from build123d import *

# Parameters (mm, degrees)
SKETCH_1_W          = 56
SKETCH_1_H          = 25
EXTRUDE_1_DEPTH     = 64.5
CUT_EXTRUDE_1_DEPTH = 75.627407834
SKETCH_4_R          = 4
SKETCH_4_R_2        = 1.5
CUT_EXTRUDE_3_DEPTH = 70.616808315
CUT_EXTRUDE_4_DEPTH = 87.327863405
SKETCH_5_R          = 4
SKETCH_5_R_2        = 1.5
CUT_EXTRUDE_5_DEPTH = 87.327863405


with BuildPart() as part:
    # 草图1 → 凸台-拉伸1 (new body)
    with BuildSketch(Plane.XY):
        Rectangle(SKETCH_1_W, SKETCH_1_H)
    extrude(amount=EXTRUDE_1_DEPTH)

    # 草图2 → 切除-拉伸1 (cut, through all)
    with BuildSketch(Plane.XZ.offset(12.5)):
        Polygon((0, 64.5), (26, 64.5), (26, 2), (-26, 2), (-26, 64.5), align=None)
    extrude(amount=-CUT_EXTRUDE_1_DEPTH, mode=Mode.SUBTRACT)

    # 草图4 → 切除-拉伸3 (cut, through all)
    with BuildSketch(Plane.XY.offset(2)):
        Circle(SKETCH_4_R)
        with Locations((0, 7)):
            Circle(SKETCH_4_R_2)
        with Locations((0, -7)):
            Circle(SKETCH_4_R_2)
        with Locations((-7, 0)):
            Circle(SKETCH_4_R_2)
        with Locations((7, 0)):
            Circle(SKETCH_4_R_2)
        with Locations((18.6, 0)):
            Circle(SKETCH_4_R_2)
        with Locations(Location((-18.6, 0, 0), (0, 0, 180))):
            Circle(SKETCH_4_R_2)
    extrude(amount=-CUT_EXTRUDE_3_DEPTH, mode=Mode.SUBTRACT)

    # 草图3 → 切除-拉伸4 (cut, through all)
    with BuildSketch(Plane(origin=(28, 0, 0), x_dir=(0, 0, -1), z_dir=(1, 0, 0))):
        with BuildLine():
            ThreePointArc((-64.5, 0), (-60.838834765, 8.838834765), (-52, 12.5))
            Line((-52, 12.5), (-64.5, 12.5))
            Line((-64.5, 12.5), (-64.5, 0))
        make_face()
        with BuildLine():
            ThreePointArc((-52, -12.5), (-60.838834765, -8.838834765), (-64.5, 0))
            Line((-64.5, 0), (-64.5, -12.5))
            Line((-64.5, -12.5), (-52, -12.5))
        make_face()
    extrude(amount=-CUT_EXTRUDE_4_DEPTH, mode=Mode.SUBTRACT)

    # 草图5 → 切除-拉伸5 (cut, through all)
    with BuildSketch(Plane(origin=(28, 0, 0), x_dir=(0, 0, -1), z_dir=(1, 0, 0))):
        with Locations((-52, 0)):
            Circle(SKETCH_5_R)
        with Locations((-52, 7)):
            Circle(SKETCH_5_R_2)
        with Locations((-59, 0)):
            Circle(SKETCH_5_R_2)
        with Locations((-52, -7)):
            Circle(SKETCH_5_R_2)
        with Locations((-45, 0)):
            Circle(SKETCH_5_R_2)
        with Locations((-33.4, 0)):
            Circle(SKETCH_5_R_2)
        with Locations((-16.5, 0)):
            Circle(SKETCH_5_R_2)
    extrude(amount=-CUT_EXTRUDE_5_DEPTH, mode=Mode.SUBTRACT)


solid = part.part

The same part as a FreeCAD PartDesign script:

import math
import FreeCAD as App
import Part
import Sketcher
from FreeCAD import Vector


def add_polygon(sketch, points):
    """Adds a closed chain of lines whose ends are joined by coincident constraints."""
    first, n = sketch.GeometryCount, len(points)
    for a, b in zip(points, points[1:] + points[:1]):
        sketch.addGeometry(Part.LineSegment(App.Vector(*a, 0), App.Vector(*b, 0)), False)
    for i in range(n):
        sketch.addConstraint(Sketcher.Constraint("Coincident", first + i, 2, first + (i + 1) % n, 1))

doc = App.newDocument("Part")
params = doc.addObject("Spreadsheet::Sheet", "Params")
for row, (alias, value) in enumerate([
    ("sketch1_width", "56 mm"),
    ("sketch1_height", "25 mm"),
    ("pad1_length", "64.5 mm"),
    ("sketch2_width", "52 mm"),
    ("sketch2_height", "62.5 mm"),
    ("sketch3_diameter", "8 mm"),
    ("sketch3_diameter2", "3 mm"),
    ("sketch4_radius", "12.5 mm"),
    ("sketch5_diameter", "8 mm"),
    ("sketch5_diameter2", "3 mm"),
], start=1):
    params.set(f"A{row}", alias)
    params.set(f"B{row}", "=" + value)
    params.setAlias(f"B{row}", alias)

body = doc.addObject("PartDesign::Body", "Body")

# Sketch on XY plane
sketch1 = body.newObject("Sketcher::SketchObject", "Sketch")
sketch1.AttachmentSupport = (doc.getObject("XY_Plane"), [""])
sketch1.MapMode = "FlatFace"
add_polygon(sketch1, [(-28, 12), (-28, -12), (28, -12), (28, 12)])  # lines 0-3
sketch1.addConstraint(Sketcher.Constraint("Vertical", 0))
sketch1.addConstraint(Sketcher.Constraint("Horizontal", 1))
sketch1.addConstraint(Sketcher.Constraint("Vertical", 2))
sketch1.addConstraint(Sketcher.Constraint("Horizontal", 3))
sketch1.addConstraint(Sketcher.Constraint("Symmetric", 0, 2, 2, 2, -1, 1))
sketch1.addConstraint(Sketcher.Constraint("DistanceX", 1, 1, 1, 2, 56.0))
sketch1.addConstraint(Sketcher.Constraint("DistanceY", 0, 2, 0, 1, 25.0))
sketch1.setExpression("Constraints[9]", "Params.sketch1_width")
sketch1.setExpression("Constraints[10]", "Params.sketch1_height")
pad1 = body.newObject("PartDesign::Pad", "Pad")
pad1.Profile = sketch1
pad1.setExpression("Length", "Params.pad1_length")

# Sketch on XZ plane
sketch2 = body.newObject("Sketcher::SketchObject", "Sketch001")
sketch2.AttachmentSupport = (doc.getObject("XZ_Plane"), [""])
sketch2.MapMode = "FlatFace"
sketch2.AttachmentOffset = App.Placement(Vector(0, 0, 12.5), App.Rotation())
add_polygon(sketch2, [(26, 64), (-26, 64), (-26, 2), (26, 2)])  # lines 0-3
sketch2.addConstraint(Sketcher.Constraint("Horizontal", 0))
sketch2.addConstraint(Sketcher.Constraint("Vertical", 1))
sketch2.addConstraint(Sketcher.Constraint("Horizontal", 2))
sketch2.addConstraint(Sketcher.Constraint("Vertical", 3))
sketch2.addConstraint(Sketcher.Constraint("DistanceX", 0, 2, 0, 1, 52.0))
sketch2.addConstraint(Sketcher.Constraint("DistanceY", 1, 2, 1, 1, 62.5))
sketch2.addConstraint(Sketcher.Constraint("DistanceX", 0, 2, -1, 1, 26.0))
sketch2.addConstraint(Sketcher.Constraint("DistanceY", -1, 1, 1, 2, 2.0))
sketch2.setExpression("Constraints[8]", "Params.sketch2_width")
sketch2.setExpression("Constraints[9]", "Params.sketch2_height")
pocket1 = body.newObject("PartDesign::Pocket", "Pocket")
pocket1.Profile = sketch2
pocket1.Type = "ThroughAll"

# Sketch on XY plane
sketch3 = body.newObject("Sketcher::SketchObject", "Sketch002")
sketch3.AttachmentSupport = (doc.getObject("XY_Plane"), [""])
sketch3.MapMode = "FlatFace"
sketch3.AttachmentOffset = App.Placement(Vector(0, 0, 2), App.Rotation())
sketch3.addGeometry(Part.Circle(Vector(0, 0, 0), Vector(0, 0, 1), 4), False)
sketch3.addGeometry(Part.Circle(Vector(0, 7, 0), Vector(0, 0, 1), 1.5), False)
sketch3.addGeometry(Part.Circle(Vector(0, -7, 0), Vector(0, 0, 1), 1.5), False)
sketch3.addGeometry(Part.Circle(Vector(-7, 0, 0), Vector(0, 0, 1), 1.5), False)
sketch3.addGeometry(Part.Circle(Vector(7, 0, 0), Vector(0, 0, 1), 1.5), False)
sketch3.addGeometry(Part.Circle(Vector(18.6, 0, 0), Vector(0, 0, 1), 1.5), False)
sketch3.addGeometry(Part.Circle(Vector(-18.6, 0, 0), Vector(0, 0, 1), 1.5), False)
sketch3.addConstraint(Sketcher.Constraint("Coincident", 0, 3, -1, 1))
sketch3.addConstraint(Sketcher.Constraint("Equal", 1, 2))
sketch3.addConstraint(Sketcher.Constraint("Equal", 2, 3))
sketch3.addConstraint(Sketcher.Constraint("Equal", 3, 4))
sketch3.addConstraint(Sketcher.Constraint("Equal", 4, 5))
sketch3.addConstraint(Sketcher.Constraint("Equal", 5, 6))
sketch3.addConstraint(Sketcher.Constraint("Symmetric", 1, 3, 2, 3, -1, 1))
sketch3.addConstraint(Sketcher.Constraint("Symmetric", 3, 3, 4, 3, -1, 1))
sketch3.addConstraint(Sketcher.Constraint("Symmetric", 5, 3, 6, 3, -1, 1))
sketch3.addConstraint(Sketcher.Constraint("PointOnObject", 1, 3, -2))
sketch3.addConstraint(Sketcher.Constraint("PointOnObject", 3, 3, -1))
sketch3.addConstraint(Sketcher.Constraint("PointOnObject", 5, 3, -1))
sketch3.addConstraint(Sketcher.Constraint("Diameter", 0, 8.0))
sketch3.addConstraint(Sketcher.Constraint("Diameter", 1, 3.0))
sketch3.addConstraint(Sketcher.Constraint("DistanceY", -1, 1, 1, 3, 7.0))
sketch3.addConstraint(Sketcher.Constraint("DistanceX", 3, 3, -1, 1, 7.0))
sketch3.addConstraint(Sketcher.Constraint("DistanceX", -1, 1, 5, 3, 18.6))
sketch3.setExpression("Constraints[12]", "Params.sketch3_diameter")
sketch3.setExpression("Constraints[13]", "Params.sketch3_diameter2")
pocket2 = body.newObject("PartDesign::Pocket", "Pocket001")
pocket2.Profile = sketch3
pocket2.Type = "ThroughAll"

# Sketch on YZ plane
sketch4 = body.newObject("Sketcher::SketchObject", "Sketch003")
sketch4.AttachmentSupport = (doc.getObject("YZ_Plane"), [""])
sketch4.MapMode = "FlatFace"
sketch4.AttachmentOffset = App.Placement(Vector(0, 0, 28), App.Rotation())
sketch4.addGeometry(Part.ArcOfCircle(Part.Circle(Vector(0, 52, 0), Vector(0, 0, 1), 12), math.radians(0), math.radians(90)), False)
sketch4.addGeometry(Part.LineSegment(Vector(12, 52, 0), Vector(12, 64, 0)), False)
sketch4.addGeometry(Part.LineSegment(Vector(12, 64, 0), Vector(0, 64, 0)), False)
sketch4.addGeometry(Part.ArcOfCircle(Part.Circle(Vector(0, 52, 0), Vector(0, 0, 1), 12), math.radians(90), math.radians(180)), False)
sketch4.addGeometry(Part.LineSegment(Vector(0, 64, 0), Vector(-12, 64, 0)), False)
sketch4.addGeometry(Part.LineSegment(Vector(-12, 64, 0), Vector(-12, 52, 0)), False)
sketch4.addConstraint(Sketcher.Constraint("Tangent", 0, 1, 1, 1))
sketch4.addConstraint(Sketcher.Constraint("Coincident", 1, 2, 2, 1))
sketch4.addConstraint(Sketcher.Constraint("Tangent", 2, 2, 0, 2))
sketch4.addConstraint(Sketcher.Constraint("Tangent", 3, 1, 4, 1))
sketch4.addConstraint(Sketcher.Constraint("Coincident", 4, 2, 5, 1))
sketch4.addConstraint(Sketcher.Constraint("Tangent", 5, 2, 3, 2))
sketch4.addConstraint(Sketcher.Constraint("Vertical", 1))
sketch4.addConstraint(Sketcher.Constraint("Horizontal", 2))
sketch4.addConstraint(Sketcher.Constraint("Horizontal", 4))
sketch4.addConstraint(Sketcher.Constraint("Vertical", 5))
sketch4.addConstraint(Sketcher.Constraint("Coincident", 3, 3, 0, 3))
sketch4.addConstraint(Sketcher.Constraint("Equal", 0, 3))
sketch4.addConstraint(Sketcher.Constraint("PointOnObject", 0, 3, -2))
sketch4.addConstraint(Sketcher.Constraint("Radius", 0, 12.5))
sketch4.addConstraint(Sketcher.Constraint("DistanceY", -1, 1, 0, 3, 52.0))
sketch4.setExpression("Constraints[13]", "Params.sketch4_radius")
pocket3 = body.newObject("PartDesign::Pocket", "Pocket002")
pocket3.Profile = sketch4
pocket3.Type = "ThroughAll"

# Sketch on YZ plane
sketch5 = body.newObject("Sketcher::SketchObject", "Sketch004")
sketch5.AttachmentSupport = (doc.getObject("YZ_Plane"), [""])
sketch5.MapMode = "FlatFace"
sketch5.AttachmentOffset = App.Placement(Vector(0, 0, 28), App.Rotation())
sketch5.addGeometry(Part.Circle(Vector(0, 52, 0), Vector(0, 0, 1), 4), False)
sketch5.addGeometry(Part.Circle(Vector(7, 52, 0), Vector(0, 0, 1), 1.5), False)
sketch5.addGeometry(Part.Circle(Vector(0, 59, 0), Vector(0, 0, 1), 1.5), False)
sketch5.addGeometry(Part.Circle(Vector(-7, 52, 0), Vector(0, 0, 1), 1.5), False)
sketch5.addGeometry(Part.Circle(Vector(0, 45, 0), Vector(0, 0, 1), 1.5), False)
sketch5.addGeometry(Part.Circle(Vector(0, 33.4, 0), Vector(0, 0, 1), 1.5), False)
sketch5.addGeometry(Part.Circle(Vector(0, 16.5, 0), Vector(0, 0, 1), 1.5), False)
sketch5.addConstraint(Sketcher.Constraint("Equal", 1, 2))
sketch5.addConstraint(Sketcher.Constraint("Equal", 2, 3))
sketch5.addConstraint(Sketcher.Constraint("Equal", 3, 4))
sketch5.addConstraint(Sketcher.Constraint("Equal", 4, 5))
sketch5.addConstraint(Sketcher.Constraint("Equal", 5, 6))
sketch5.addConstraint(Sketcher.Constraint("Symmetric", 1, 3, 3, 3, -2))
sketch5.addConstraint(Sketcher.Constraint("PointOnObject", 0, 3, -2))
sketch5.addConstraint(Sketcher.Constraint("PointOnObject", 2, 3, -2))
sketch5.addConstraint(Sketcher.Constraint("PointOnObject", 4, 3, -2))
sketch5.addConstraint(Sketcher.Constraint("PointOnObject", 5, 3, -2))
sketch5.addConstraint(Sketcher.Constraint("PointOnObject", 6, 3, -2))
sketch5.addConstraint(Sketcher.Constraint("Horizontal", 0, 3, 1, 3))
sketch5.addConstraint(Sketcher.Constraint("Diameter", 0, 8.0))
sketch5.addConstraint(Sketcher.Constraint("Diameter", 1, 3.0))
sketch5.addConstraint(Sketcher.Constraint("DistanceY", -1, 1, 0, 3, 52.0))
sketch5.addConstraint(Sketcher.Constraint("DistanceX", -1, 1, 1, 3, 7.0))
sketch5.addConstraint(Sketcher.Constraint("DistanceY", -1, 1, 2, 3, 59.0))
sketch5.addConstraint(Sketcher.Constraint("DistanceY", -1, 1, 4, 3, 45.0))
sketch5.addConstraint(Sketcher.Constraint("DistanceY", -1, 1, 5, 3, 33.4))
sketch5.addConstraint(Sketcher.Constraint("DistanceY", -1, 1, 6, 3, 16.5))
sketch5.setExpression("Constraints[12]", "Params.sketch5_diameter")
sketch5.setExpression("Constraints[13]", "Params.sketch5_diameter2")
pocket4 = body.newObject("PartDesign::Pocket", "Pocket003")
pocket4.Profile = sketch5
pocket4.Type = "ThroughAll"

doc.recompute()
